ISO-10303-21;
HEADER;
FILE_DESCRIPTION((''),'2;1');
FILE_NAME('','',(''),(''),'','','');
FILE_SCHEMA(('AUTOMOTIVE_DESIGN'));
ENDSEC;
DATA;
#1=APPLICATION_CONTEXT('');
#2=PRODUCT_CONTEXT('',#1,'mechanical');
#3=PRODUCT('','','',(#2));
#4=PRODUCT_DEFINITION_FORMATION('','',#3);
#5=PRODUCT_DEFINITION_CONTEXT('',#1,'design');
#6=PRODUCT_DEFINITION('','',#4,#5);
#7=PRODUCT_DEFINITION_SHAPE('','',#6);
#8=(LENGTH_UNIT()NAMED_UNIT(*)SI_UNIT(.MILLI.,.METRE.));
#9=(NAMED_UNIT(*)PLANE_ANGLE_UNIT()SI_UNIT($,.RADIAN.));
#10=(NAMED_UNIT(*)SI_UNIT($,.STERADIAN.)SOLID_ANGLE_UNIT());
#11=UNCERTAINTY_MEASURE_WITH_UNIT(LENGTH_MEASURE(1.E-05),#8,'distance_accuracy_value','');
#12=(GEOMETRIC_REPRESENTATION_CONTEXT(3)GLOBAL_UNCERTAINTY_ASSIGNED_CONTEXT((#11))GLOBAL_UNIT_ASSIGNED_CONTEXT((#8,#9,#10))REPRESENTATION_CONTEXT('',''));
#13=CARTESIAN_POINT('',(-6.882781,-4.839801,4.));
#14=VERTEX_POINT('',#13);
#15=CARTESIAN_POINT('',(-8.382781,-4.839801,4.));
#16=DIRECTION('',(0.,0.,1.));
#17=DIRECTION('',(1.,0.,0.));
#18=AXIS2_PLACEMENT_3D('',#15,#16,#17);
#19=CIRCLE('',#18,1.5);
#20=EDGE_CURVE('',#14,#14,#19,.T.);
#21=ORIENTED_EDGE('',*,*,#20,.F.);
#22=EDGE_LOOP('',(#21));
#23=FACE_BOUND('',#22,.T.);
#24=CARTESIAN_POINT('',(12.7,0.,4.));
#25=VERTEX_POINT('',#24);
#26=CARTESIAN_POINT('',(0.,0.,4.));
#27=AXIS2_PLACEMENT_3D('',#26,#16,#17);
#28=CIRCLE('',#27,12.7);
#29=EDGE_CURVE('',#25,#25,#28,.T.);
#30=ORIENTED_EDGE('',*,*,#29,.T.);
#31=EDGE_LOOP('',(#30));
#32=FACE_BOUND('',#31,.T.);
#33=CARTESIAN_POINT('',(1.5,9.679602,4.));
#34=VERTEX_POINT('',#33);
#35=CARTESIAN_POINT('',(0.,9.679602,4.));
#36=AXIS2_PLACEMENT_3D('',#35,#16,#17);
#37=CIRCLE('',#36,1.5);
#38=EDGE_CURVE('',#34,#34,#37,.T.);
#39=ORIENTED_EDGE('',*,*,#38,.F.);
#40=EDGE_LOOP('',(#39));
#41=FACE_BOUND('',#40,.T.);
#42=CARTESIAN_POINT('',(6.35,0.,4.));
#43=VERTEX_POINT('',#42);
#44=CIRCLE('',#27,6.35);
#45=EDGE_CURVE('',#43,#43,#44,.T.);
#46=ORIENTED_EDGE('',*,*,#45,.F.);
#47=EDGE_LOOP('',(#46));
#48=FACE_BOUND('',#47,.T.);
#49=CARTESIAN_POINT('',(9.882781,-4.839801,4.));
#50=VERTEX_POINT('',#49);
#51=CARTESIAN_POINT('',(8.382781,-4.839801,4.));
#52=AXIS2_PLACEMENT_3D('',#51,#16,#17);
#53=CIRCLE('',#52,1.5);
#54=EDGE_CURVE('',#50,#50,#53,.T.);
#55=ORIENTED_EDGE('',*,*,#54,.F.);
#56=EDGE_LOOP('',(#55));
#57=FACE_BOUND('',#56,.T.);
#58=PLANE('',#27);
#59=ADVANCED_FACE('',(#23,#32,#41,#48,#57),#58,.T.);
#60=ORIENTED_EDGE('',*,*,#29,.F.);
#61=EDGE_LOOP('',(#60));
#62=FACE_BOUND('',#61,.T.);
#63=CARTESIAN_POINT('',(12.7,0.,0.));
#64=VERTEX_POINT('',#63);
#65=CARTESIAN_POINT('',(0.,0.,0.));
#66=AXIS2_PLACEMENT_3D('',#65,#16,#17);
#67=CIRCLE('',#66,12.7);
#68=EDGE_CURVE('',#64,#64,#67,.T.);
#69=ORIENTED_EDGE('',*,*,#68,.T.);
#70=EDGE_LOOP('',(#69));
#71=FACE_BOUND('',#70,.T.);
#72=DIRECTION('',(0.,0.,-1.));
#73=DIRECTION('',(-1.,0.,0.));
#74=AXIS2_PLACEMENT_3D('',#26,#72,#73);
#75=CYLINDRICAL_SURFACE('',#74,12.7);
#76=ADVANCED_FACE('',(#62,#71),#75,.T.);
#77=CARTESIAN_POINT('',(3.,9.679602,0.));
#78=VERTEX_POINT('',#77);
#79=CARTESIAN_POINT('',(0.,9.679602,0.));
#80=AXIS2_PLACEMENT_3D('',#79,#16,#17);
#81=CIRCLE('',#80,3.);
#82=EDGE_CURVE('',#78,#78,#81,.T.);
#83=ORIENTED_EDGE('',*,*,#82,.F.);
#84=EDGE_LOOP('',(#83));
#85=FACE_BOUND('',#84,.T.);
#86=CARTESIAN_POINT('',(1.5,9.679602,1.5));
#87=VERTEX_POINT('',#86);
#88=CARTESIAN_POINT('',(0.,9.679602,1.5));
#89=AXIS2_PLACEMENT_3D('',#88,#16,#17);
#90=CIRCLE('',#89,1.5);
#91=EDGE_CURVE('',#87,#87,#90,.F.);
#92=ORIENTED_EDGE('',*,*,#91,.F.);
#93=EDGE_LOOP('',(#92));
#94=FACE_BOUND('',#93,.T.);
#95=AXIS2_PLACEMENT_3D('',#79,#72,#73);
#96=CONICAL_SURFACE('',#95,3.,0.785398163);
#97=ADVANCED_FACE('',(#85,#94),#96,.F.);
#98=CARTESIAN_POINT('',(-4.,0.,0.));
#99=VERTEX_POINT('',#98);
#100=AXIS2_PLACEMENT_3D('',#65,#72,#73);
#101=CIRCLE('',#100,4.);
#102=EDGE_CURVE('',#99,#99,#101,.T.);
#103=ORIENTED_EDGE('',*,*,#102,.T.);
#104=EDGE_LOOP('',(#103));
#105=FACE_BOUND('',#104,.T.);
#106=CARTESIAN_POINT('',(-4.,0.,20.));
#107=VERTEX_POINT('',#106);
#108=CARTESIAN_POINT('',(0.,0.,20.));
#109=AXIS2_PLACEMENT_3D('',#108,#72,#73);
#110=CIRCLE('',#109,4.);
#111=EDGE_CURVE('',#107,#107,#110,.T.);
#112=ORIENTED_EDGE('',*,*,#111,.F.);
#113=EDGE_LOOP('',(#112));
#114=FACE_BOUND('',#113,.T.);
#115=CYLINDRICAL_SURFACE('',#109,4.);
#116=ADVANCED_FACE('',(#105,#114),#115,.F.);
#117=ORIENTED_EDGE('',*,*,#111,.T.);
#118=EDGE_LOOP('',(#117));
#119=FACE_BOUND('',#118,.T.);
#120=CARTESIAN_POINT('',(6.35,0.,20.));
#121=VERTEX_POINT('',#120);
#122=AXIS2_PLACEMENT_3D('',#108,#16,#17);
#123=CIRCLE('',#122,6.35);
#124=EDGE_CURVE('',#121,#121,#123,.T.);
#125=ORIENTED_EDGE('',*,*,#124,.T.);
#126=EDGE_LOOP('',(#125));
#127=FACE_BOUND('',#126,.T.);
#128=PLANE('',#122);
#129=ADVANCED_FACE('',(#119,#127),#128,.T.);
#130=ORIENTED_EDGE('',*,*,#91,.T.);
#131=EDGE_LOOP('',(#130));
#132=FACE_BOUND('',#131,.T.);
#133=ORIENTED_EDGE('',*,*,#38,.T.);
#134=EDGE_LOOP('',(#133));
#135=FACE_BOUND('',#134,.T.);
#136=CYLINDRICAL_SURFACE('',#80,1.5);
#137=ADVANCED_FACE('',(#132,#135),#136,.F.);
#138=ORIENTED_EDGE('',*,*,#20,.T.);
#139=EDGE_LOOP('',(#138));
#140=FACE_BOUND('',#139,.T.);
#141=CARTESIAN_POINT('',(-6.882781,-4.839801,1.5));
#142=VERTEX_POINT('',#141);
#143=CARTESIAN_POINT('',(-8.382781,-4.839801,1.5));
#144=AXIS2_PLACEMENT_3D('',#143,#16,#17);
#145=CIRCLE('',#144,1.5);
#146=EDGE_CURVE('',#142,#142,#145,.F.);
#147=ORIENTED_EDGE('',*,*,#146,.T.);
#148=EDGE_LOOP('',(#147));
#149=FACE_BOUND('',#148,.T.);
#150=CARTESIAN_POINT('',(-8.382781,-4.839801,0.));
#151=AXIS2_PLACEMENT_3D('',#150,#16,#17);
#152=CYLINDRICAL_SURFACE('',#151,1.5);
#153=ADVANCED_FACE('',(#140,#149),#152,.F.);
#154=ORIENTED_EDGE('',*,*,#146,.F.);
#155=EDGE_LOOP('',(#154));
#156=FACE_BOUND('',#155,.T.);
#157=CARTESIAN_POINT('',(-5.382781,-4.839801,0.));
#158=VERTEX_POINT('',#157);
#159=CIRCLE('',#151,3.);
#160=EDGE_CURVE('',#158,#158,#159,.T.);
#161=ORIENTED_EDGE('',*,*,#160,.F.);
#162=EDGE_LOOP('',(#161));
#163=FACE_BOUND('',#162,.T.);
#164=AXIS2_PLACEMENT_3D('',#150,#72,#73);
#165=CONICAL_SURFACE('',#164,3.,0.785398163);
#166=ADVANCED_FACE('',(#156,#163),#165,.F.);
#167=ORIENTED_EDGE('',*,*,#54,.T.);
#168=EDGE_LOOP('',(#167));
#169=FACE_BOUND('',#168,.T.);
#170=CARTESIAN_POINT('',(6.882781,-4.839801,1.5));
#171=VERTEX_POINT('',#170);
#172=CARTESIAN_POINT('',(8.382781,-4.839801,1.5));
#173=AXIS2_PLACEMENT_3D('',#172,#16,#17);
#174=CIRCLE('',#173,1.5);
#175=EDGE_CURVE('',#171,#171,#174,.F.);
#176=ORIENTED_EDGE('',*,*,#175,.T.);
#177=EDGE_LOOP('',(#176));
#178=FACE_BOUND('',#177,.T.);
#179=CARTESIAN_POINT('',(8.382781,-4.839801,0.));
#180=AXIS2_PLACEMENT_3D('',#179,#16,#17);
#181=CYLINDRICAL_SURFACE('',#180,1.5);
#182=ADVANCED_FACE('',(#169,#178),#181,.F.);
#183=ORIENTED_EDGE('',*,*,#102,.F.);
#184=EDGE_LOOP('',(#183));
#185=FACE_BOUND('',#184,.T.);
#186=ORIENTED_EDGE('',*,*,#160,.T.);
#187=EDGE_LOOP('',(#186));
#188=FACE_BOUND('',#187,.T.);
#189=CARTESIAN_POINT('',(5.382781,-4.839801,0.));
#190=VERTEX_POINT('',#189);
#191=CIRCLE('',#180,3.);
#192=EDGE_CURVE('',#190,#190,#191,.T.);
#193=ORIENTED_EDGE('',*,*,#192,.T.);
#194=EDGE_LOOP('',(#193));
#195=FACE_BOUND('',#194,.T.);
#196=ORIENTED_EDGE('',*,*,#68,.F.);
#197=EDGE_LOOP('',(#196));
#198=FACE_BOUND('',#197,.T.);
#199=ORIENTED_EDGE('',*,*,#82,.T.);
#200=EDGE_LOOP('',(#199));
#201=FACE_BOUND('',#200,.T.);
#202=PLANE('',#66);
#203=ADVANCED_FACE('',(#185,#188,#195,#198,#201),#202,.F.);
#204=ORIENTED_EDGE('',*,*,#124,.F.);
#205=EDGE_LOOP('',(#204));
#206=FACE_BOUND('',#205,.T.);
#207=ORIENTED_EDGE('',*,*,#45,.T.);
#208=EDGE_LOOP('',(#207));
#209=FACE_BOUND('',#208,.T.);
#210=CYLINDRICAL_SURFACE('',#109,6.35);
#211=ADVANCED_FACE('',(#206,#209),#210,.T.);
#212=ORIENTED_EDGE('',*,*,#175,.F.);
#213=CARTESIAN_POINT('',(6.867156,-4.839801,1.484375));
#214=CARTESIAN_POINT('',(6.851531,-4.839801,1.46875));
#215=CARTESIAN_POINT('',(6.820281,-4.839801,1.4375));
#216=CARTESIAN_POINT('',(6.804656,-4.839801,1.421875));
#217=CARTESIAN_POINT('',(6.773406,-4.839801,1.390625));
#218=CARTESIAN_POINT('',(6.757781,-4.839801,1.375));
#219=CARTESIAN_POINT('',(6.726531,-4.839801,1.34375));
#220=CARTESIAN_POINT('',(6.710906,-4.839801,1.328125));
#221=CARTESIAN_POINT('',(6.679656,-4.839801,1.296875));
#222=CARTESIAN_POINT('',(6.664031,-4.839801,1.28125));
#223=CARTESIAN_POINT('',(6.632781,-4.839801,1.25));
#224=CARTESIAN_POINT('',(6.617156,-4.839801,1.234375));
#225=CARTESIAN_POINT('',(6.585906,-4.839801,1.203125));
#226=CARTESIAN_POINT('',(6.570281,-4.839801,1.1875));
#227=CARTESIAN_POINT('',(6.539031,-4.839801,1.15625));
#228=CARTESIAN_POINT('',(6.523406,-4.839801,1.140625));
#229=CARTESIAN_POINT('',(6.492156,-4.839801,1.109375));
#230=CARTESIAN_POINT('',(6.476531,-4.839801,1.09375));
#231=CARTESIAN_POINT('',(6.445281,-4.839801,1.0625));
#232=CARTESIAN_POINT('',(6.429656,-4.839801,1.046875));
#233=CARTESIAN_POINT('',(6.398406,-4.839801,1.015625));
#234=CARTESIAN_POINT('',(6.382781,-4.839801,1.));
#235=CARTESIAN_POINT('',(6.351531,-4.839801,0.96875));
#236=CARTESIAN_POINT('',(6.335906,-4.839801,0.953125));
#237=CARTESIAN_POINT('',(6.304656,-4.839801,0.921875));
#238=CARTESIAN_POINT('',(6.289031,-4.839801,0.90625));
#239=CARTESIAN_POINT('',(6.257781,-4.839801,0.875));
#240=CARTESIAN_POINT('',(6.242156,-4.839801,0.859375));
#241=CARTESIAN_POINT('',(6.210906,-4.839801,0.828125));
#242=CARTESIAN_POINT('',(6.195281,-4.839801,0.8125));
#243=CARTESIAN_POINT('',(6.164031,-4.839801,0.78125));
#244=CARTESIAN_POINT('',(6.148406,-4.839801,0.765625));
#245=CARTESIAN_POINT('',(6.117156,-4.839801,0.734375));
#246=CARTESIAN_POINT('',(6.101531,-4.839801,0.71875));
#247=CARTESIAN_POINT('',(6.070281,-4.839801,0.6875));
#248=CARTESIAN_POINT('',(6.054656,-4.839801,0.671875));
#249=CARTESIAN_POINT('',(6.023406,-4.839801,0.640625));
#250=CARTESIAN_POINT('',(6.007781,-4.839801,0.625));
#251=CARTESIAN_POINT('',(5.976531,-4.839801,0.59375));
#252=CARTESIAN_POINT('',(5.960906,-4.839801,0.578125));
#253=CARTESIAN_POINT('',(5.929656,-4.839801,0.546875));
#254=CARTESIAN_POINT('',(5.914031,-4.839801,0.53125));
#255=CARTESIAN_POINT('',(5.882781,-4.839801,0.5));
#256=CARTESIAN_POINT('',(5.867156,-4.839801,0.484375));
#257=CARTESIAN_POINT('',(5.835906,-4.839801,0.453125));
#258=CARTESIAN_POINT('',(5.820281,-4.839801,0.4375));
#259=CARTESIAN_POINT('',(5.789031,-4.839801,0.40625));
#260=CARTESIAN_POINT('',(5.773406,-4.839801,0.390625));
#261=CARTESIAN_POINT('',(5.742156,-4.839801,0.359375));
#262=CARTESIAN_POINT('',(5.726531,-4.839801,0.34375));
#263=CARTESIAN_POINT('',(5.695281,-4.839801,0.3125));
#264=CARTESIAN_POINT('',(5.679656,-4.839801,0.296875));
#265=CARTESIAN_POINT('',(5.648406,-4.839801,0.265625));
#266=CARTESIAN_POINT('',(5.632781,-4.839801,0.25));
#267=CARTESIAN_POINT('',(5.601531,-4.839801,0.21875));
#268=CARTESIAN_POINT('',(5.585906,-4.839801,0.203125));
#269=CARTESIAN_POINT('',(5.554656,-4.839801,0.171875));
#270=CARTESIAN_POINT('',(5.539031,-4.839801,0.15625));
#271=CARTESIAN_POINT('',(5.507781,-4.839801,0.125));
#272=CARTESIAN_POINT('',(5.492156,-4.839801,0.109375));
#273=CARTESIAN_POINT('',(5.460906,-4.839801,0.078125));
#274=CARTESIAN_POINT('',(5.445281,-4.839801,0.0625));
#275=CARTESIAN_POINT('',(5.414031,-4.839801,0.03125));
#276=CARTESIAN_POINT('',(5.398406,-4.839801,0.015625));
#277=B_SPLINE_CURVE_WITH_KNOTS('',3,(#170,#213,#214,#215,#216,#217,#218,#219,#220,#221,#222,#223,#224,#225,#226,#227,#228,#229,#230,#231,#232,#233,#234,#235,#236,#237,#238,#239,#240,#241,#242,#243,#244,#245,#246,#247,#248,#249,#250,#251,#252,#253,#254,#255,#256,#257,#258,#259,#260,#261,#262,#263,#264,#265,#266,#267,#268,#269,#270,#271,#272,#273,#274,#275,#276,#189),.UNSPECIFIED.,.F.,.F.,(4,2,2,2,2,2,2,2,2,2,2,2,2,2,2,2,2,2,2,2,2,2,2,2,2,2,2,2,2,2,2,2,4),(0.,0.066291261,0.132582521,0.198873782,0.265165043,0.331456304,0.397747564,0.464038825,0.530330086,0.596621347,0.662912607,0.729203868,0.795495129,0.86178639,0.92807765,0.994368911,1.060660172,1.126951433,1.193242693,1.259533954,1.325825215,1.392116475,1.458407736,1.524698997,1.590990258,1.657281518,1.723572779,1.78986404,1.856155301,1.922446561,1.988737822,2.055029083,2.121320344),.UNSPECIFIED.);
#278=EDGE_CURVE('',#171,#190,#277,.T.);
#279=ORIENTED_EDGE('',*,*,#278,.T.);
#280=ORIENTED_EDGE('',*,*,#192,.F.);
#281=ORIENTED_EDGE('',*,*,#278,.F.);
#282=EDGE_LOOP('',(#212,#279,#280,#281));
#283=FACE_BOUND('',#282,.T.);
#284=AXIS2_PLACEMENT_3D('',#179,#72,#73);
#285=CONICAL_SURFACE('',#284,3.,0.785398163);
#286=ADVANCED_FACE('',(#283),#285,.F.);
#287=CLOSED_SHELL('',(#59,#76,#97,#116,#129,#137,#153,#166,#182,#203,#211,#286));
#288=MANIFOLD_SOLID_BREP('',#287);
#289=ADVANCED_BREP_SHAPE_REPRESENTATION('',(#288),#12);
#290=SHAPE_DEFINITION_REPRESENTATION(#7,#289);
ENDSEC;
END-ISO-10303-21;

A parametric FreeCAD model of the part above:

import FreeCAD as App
import Part
import Sketcher
Q = App.Units.Quantity


def edges_at(feature, points):
    """Names of the edges that pass closest to the given points."""
    edges = feature.Shape.Edges
    near = lambda p: min(range(len(edges)), key=lambda i: edges[i].distToShape(Part.Vertex(*p))[0])
    return sorted({f"Edge{near(p) + 1}" for p in points})

doc = App.newDocument("Part")
body = doc.addObject("PartDesign::Body", "Body")

sketch1 = doc.addObject("Sketcher::SketchObject", "Sketch")
body.addObject(sketch1)
sketch1.AttachmentSupport = (doc.XY_Plane, [""])
sketch1.MapMode = "FlatFace"
sketch1.addGeometry(Part.Circle(App.Vector(0, 0, 0), App.Vector(0, 0, 1), 13), False)
sketch1.addConstraint([
    Sketcher.Constraint("Coincident", 0, 3, -1, 1),
    Sketcher.Constraint("Diameter", 0, Q("25.4 mm")),
])
pad1 = doc.addObject("PartDesign::Pad", "Pad")
body.addObject(pad1)
pad1.Profile = sketch1
pad1.Length = 4

sketch2 = doc.addObject("Sketcher::SketchObject", "Sketch001")
body.addObject(sketch2)
sketch2.AttachmentSupport = (doc.XY_Plane, [""])
sketch2.MapMode = "FlatFace"
sketch2.AttachmentOffset = App.Placement(App.Vector(0, 0, 4), App.Rotation())
sketch2.addGeometry(Part.Circle(App.Vector(0, 0, 0), App.Vector(0, 0, 1), 6), False)
sketch2.addConstraint([
    Sketcher.Constraint("Coincident", 0, 3, -1, 1),
    Sketcher.Constraint("Diameter", 0, Q("12.7 mm")),
])
pad2 = doc.addObject("PartDesign::Pad", "Pad001")
body.addObject(pad2)
pad2.Profile = sketch2
pad2.Length = 16

sketch3 = doc.addObject("Sketcher::SketchObject", "Sketch002")
body.addObject(sketch3)
sketch3.AttachmentSupport = (doc.XY_Plane, [""])
sketch3.MapMode = "FlatFace"
sketch3.addGeometry(Part.Circle(App.Vector(0, 0, 0), App.Vector(0, 0, 1), 4), False)
sketch3.addConstraint([
    Sketcher.Constraint("Coincident", 0, 3, -1, 1),
    Sketcher.Constraint("Diameter", 0, Q("8 mm")),
])
pocket1 = doc.addObject("PartDesign::Pocket", "Pocket")
body.addObject(pocket1)
pocket1.Profile = sketch3
pocket1.Type = "ThroughAll"
pocket1.Reversed = True

sketch4 = doc.addObject("Sketcher::SketchObject", "Sketch003")
body.addObject(sketch4)
sketch4.AttachmentSupport = (doc.XY_Plane, [""])
sketch4.MapMode = "FlatFace"
sketch4.AttachmentOffset = App.Placement(App.Vector(0, 0, 4), App.Rotation())
sketch4.addGeometry([
    Part.Circle(App.Vector(0, 9.7, 0), App.Vector(0, 0, 1), 1.5),
    Part.Circle(App.Vector(8.4, -4.8, 0), App.Vector(0, 0, 1), 1.5),
    Part.Circle(App.Vector(-8.4, -4.8, 0), App.Vector(0, 0, 1), 1.5),
], False)
sketch4.addConstraint([
    Sketcher.Constraint("Equal", 0, 1),
    Sketcher.Constraint("Equal", 1, 2),
    Sketcher.Constraint("Symmetric", 1, 3, 2, 3, -2),
    Sketcher.Constraint("PointOnObject", 0, 3, -2),
    Sketcher.Constraint("Diameter", 0, Q("3 mm")),
    Sketcher.Constraint("DistanceY", 1, 3, -1, 1, Q("4.839801 mm")),
    Sketcher.Constraint("DistanceX", -1, 1, 1, 3, Q("8.382781 mm")),
    Sketcher.Constraint("DistanceY", -1, 1, 0, 3, Q("9.679602 mm")),
])
pocket2 = doc.addObject("PartDesign::Pocket", "Pocket001")
body.addObject(pocket2)
pocket2.Profile = sketch4
pocket2.Type = "ThroughAll"
doc.recompute()

chamfer = doc.addObject("PartDesign::Chamfer", "Chamfer")
body.addObject(chamfer)
chamfer.Base = (pocket2, edges_at(pocket2, [(-1.5, 9.68, 0), (6.883, -4.84, 0), (-9.883, -4.84, 0)]))
chamfer.Size = 1.5

doc.recompute()
